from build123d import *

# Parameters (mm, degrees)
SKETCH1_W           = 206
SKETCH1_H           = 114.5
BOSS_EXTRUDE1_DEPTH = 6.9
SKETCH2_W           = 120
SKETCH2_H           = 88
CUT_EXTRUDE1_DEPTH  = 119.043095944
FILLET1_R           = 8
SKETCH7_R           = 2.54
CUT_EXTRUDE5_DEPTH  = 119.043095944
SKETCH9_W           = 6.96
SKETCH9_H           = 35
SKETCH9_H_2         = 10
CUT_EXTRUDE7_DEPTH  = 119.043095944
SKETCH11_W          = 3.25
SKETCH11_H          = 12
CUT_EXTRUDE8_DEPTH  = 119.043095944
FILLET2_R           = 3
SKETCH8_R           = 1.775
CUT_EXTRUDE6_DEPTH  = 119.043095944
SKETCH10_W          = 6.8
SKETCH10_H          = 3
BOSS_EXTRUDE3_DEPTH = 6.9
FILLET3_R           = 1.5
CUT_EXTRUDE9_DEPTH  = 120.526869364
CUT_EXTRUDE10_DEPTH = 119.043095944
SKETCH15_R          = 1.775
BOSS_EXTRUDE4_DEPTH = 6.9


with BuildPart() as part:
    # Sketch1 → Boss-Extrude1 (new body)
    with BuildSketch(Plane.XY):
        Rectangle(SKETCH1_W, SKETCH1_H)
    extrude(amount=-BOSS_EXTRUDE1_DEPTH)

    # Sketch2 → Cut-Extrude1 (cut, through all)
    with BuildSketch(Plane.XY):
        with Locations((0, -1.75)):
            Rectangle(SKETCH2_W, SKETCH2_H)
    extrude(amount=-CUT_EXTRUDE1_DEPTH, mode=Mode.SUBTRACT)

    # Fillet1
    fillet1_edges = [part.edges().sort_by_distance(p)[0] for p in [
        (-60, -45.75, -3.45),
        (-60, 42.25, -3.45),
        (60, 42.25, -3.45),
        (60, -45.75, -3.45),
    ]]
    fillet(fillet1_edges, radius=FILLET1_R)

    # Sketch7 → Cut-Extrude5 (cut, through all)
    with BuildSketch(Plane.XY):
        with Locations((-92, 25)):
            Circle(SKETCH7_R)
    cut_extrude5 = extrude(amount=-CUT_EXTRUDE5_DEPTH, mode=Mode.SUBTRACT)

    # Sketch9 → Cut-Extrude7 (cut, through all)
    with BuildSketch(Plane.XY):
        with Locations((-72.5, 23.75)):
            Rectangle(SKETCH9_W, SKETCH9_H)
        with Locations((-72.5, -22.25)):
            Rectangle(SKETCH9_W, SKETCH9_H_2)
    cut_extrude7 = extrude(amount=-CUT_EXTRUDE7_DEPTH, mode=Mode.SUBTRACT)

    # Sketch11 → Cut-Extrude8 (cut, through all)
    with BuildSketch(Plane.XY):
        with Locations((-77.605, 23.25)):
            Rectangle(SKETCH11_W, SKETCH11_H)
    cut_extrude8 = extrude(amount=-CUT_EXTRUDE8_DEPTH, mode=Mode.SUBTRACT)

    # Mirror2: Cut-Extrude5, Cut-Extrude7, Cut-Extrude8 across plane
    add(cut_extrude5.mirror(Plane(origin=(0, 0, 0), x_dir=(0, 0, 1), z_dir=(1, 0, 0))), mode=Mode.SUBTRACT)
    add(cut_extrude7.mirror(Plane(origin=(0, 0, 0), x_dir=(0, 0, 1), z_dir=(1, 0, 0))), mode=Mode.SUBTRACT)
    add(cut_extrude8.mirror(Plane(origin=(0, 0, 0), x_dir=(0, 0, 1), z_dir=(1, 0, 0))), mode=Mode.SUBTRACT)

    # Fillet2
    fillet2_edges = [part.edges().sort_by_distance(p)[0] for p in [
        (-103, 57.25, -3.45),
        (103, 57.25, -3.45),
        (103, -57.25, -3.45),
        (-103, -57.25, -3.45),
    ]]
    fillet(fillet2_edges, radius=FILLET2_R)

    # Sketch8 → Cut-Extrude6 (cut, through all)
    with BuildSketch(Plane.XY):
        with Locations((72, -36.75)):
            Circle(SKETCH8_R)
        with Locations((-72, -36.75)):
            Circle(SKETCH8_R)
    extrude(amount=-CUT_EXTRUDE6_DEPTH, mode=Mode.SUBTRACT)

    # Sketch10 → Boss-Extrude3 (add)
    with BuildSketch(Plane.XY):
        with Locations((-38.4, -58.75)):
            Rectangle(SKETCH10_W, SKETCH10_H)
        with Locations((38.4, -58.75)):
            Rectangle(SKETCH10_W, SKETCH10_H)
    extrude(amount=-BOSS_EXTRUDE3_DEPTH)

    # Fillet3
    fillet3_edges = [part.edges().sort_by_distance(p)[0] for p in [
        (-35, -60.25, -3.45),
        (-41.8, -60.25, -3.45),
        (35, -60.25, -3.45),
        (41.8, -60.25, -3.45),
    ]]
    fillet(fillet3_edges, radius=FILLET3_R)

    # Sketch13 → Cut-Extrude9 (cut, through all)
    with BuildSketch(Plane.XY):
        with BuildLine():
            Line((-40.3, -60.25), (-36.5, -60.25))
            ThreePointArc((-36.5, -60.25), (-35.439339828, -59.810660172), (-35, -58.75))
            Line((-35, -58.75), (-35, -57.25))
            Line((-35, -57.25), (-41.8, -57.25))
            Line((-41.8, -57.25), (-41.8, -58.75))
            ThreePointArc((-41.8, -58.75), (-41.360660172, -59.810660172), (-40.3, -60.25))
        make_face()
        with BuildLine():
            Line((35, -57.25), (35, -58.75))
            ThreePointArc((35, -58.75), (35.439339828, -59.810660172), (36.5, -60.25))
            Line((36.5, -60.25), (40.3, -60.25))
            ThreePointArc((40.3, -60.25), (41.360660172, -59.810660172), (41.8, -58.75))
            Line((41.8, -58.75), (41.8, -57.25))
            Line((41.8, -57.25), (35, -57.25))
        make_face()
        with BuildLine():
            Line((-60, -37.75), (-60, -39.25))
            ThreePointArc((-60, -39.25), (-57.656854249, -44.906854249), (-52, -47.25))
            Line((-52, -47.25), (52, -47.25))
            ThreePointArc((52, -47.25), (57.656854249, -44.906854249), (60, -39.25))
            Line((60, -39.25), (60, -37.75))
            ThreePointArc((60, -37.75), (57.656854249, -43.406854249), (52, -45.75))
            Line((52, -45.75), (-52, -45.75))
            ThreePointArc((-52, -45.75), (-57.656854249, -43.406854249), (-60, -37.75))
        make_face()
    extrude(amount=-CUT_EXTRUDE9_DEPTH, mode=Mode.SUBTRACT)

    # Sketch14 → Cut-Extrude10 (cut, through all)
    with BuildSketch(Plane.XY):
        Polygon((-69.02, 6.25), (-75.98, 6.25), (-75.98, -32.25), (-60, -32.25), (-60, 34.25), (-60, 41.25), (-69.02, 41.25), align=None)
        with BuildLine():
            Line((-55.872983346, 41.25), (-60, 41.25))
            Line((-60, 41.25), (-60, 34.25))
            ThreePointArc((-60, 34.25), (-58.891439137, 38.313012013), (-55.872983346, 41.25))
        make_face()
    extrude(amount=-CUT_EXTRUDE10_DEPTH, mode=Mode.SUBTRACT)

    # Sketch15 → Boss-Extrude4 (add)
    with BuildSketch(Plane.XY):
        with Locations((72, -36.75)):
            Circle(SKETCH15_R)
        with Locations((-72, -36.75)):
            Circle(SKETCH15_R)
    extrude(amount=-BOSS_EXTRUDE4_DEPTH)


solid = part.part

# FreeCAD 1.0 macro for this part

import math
import FreeCAD as App
import Part
import Sketcher

V = App.Vector


def edges_at(feature, points):
    """Names of the edges that pass closest to the given points."""
    edges = feature.Shape.Edges
    near = lambda p: min(range(len(edges)), key=lambda i: edges[i].distToShape(Part.Vertex(*p))[0])
    return sorted({f"Edge{near(p) + 1}" for p in points})

doc = App.newDocument("Part")
params = doc.addObject("Spreadsheet::Sheet", "Params")
for row, (alias, value) in enumerate([
    ("sketch1_width", "206 mm"),
    ("sketch1_height", "114.5 mm"),
    ("pad1_length", "6.9 mm"),
    ("sketch2_width", "120 mm"),
    ("sketch2_height", "88 mm"),
    ("fillet_radius", "8 mm"),
    ("sketch3_diameter", "5.08 mm"),
    ("sketch4_height", "35 mm"),
    ("sketch4_height2", "10 mm"),
    ("sketch4_width", "6.96 mm"),
    ("sketch5_height", "12 mm"),
    ("sketch5_width", "3.25 mm"),
    ("fillet2_radius", "3 mm"),
    ("sketch6_diameter", "3.55 mm"),
    ("sketch7_height", "3 mm"),
    ("sketch7_width", "6.8 mm"),
    ("pad2_length", "6.9 mm"),
    ("fillet3_radius", "1.5 mm"),
    ("sketch8_radius", "8 mm"),
    ("sketch8_radius2", "1.5 mm"),
    ("sketch8_width", "104 mm"),
    ("sketch8_width2", "3.8 mm"),
    ("sketch8_height", "1.5 mm"),
    ("sketch9_radius", "8 mm"),
    ("sketch9_height", "35 mm"),
    ("sketch9_height2", "38.5 mm"),
    ("sketch9_height3", "66.5 mm"),
    ("sketch9_width", "6.96 mm"),
    ("sketch10_diameter", "3.55 mm"),
    ("pad3_length", "6.9 mm"),
], start=1):
    params.set(f"A{row}", alias)
    params.set(f"B{row}", "=" + value)
    params.setAlias(f"B{row}", alias)

body = doc.addObject("PartDesign::Body", "Body")

sketch1 = body.newObject("Sketcher::SketchObject", "Sketch")
sketch1.AttachmentSupport = (doc.getObject("XY_Plane"), [""])
sketch1.MapMode = "FlatFace"
sketch1.addGeometry([
    Part.LineSegment(V(-103, 57, 0), V(-103, -57, 0)),
    Part.LineSegment(V(-103, -57, 0), V(103, -57, 0)),
    Part.LineSegment(V(103, -57, 0), V(103, 57, 0)),
    Part.LineSegment(V(103, 57, 0), V(-103, 57, 0)),
], False)
sketch1.addConstraint([
    Sketcher.Constraint("Coincident", 0, 2, 1, 1),
    Sketcher.Constraint("Coincident", 1, 2, 2, 1),
    Sketcher.Constraint("Coincident", 2, 2, 3, 1),
    Sketcher.Constraint("Coincident", 3, 2, 0, 1),
    Sketcher.Constraint("Vertical", 0),
    Sketcher.Constraint("Horizontal", 1),
    Sketcher.Constraint("Vertical", 2),
    Sketcher.Constraint("Horizontal", 3),
    Sketcher.Constraint("Symmetric", 0, 2, 2, 2, -1, 1),
    Sketcher.Constraint("DistanceX", 1, 1, 1, 2, 206.0),
    Sketcher.Constraint("DistanceY", 0, 2, 0, 1, 114.5),
])
sketch1.setExpression("Constraints[9]", "Params.sketch1_width")
sketch1.setExpression("Constraints[10]", "Params.sketch1_height")
pad1 = body.newObject("PartDesign::Pad", "Pad")
pad1.Profile = sketch1
pad1.setExpression("Length", "Params.pad1_length")
pad1.Reversed = True

sketch2 = body.newObject("Sketcher::SketchObject", "Sketch001")
sketch2.AttachmentSupport = (doc.getObject("XY_Plane"), [""])
sketch2.MapMode = "FlatFace"
sketch2.addGeometry([
    Part.LineSegment(V(-60, 42, 0), V(-60, -46, 0)),
    Part.LineSegment(V(-60, -46, 0), V(60, -46, 0)),
    Part.LineSegment(V(60, -46, 0), V(60, 42, 0)),
    Part.LineSegment(V(60, 42, 0), V(-60, 42, 0)),
], False)
sketch2.addConstraint([
    Sketcher.Constraint("Coincident", 0, 2, 1, 1),
    Sketcher.Constraint("Coincident", 1, 2, 2, 1),
    Sketcher.Constraint("Coincident", 2, 2, 3, 1),
    Sketcher.Constraint("Coincident", 3, 2, 0, 1),
    Sketcher.Constraint("Vertical", 0),
    Sketcher.Constraint("Horizontal", 1),
    Sketcher.Constraint("Vertical", 2),
    Sketcher.Constraint("Horizontal", 3),
    Sketcher.Constraint("DistanceX", 1, 1, 1, 2, 120.0),
    Sketcher.Constraint("DistanceY", 0, 2, 0, 1, 88.0),
    Sketcher.Constraint("DistanceX", 0, 2, -1, 1, 60.0),
    Sketcher.Constraint("DistanceY", 0, 2, -1, 1, 45.75),
])
sketch2.setExpression("Constraints[8]", "Params.sketch2_width")
sketch2.setExpression("Constraints[9]", "Params.sketch2_height")
pocket1 = body.newObject("PartDesign::Pocket", "Pocket")
pocket1.Profile = sketch2
pocket1.Type = "ThroughAll"
doc.recompute()

fillet = body.newObject("PartDesign::Fillet", "Fillet")
fillet.Base = (pocket1, edges_at(pocket1, [
    (-60, -45.75, -3.45),
    (-60, 42.25, -3.45),
    (60, 42.25, -3.45),
    (60, -45.75, -3.45),
]))
fillet.setExpression("Radius", "Params.fillet_radius")

sketch3 = body.newObject("Sketcher::SketchObject", "Sketch002")
sketch3.AttachmentSupport = (doc.getObject("XY_Plane"), [""])
sketch3.MapMode = "FlatFace"
sketch3.addGeometry(Part.Circle(V(-92, 25, 0), V(0, 0, 1), 2.5), False)
sketch3.addConstraint([
    Sketcher.Constraint("Diameter", 0, 5.08),
    Sketcher.Constraint("DistanceX", 0, 3, -1, 1, 92.0),
    Sketcher.Constraint("DistanceY", -1, 1, 0, 3, 25.0),
])
sketch3.setExpression("Constraints[0]", "Params.sketch3_diameter")
pocket2 = body.newObject("PartDesign::Pocket", "Pocket001")
pocket2.Profile = sketch3
pocket2.Type = "ThroughAll"

sketch4 = body.newObject("Sketcher::SketchObject", "Sketch003")
sketch4.AttachmentSupport = (doc.getObject("XY_Plane"), [""])
sketch4.MapMode = "FlatFace"
sketch4.addGeometry([
    Part.LineSegment(V(-76, 41, 0), V(-76, 6, 0)),
    Part.LineSegment(V(-76, 6, 0), V(-69, 6, 0)),
    Part.LineSegment(V(-69, 6, 0), V(-69, 41, 0)),
    Part.LineSegment(V(-69, 41, 0), V(-76, 41, 0)),
    Part.LineSegment(V(-76, -17, 0), V(-76, -27, 0)),
    Part.LineSegment(V(-76, -27, 0), V(-69, -27, 0)),
    Part.LineSegment(V(-69, -27, 0), V(-69, -17, 0)),
    Part.LineSegment(V(-69, -17, 0), V(-76, -17, 0)),
], False)
sketch4.addConstraint([
    Sketcher.Constraint("Coincident", 0, 2, 1, 1),
    Sketcher.Constraint("Coincident", 1, 2, 2, 1),
    Sketcher.Constraint("Coincident", 2, 2, 3, 1),
    Sketcher.Constraint("Coincident", 3, 2, 0, 1),
    Sketcher.Constraint("Coincident", 4, 2, 5, 1),
    Sketcher.Constraint("Coincident", 5, 2, 6, 1),
    Sketcher.Constraint("Coincident", 6, 2, 7, 1),
    Sketcher.Constraint("Coincident", 7, 2, 4, 1),
    Sketcher.Constraint("Vertical", 0),
    Sketcher.Constraint("Horizontal", 1),
    Sketcher.Constraint("Vertical", 2),
    Sketcher.Constraint("Horizontal", 3),
    Sketcher.Constraint("Vertical", 4),
    Sketcher.Constraint("Horizontal", 5),
    Sketcher.Constraint("Vertical", 6),
    Sketcher.Constraint("Horizontal", 7),
    Sketcher.Constraint("Vertical", 3, 2, 4, 2),
    Sketcher.Constraint("Vertical", 2, 2, 5, 2),
    Sketcher.Constraint("DistanceY", 0, 2, 0, 1, 35.0),
    Sketcher.Constraint("DistanceY", 4, 2, 4, 1, 10.0),
    Sketcher.Constraint("DistanceX", 1, 1, 1, 2, 6.96),
    Sketcher.Constraint("DistanceY", 4, 2, 0, 2, 33.5),
    Sketcher.Constraint("DistanceX", 0, 2, -1, 1, 75.98),
    Sketcher.Constraint("DistanceY", -1, 1, 0, 2, 6.25),
])
sketch4.setExpression("Constraints[18]", "Params.sketch4_height")
sketch4.setExpression("Constraints[19]", "Params.sketch4_height2")
sketch4.setExpression("Constraints[20]", "Params.sketch4_width")
pocket3 = body.newObject("PartDesign::Pocket", "Pocket002")
pocket3.Profile = sketch4
pocket3.Type = "ThroughAll"

sketch5 = body.newObject("Sketcher::SketchObject", "Sketch004")
sketch5.AttachmentSupport = (doc.getObject("XY_Plane"), [""])
sketch5.MapMode = "FlatFace"
sketch5.addGeometry([
    Part.LineSegment(V(-79.2, 29.2, 0), V(-79.2, 17.2, 0)),
    Part.LineSegment(V(-79.2, 17.2, 0), V(-76, 17.2, 0)),
    Part.LineSegment(V(-76, 17.2, 0), V(-76, 29.2, 0)),
    Part.LineSegment(V(-76, 29.2, 0), V(-79.2, 29.2, 0)),
], False)
sketch5.addConstraint([
    Sketcher.Constraint("Coincident", 0, 2, 1, 1),
    Sketcher.Constraint("Coincident", 1, 2, 2, 1),
    Sketcher.Constraint("Coincident", 2, 2, 3, 1),
    Sketcher.Constraint("Coincident", 3, 2, 0, 1),
    Sketcher.Constraint("Vertical", 0),
    Sketcher.Constraint("Horizontal", 1),
    Sketcher.Constraint("Vertical", 2),
    Sketcher.Constraint("Horizontal", 3),
    Sketcher.Constraint("DistanceY", 0, 2, 0, 1, 12.0),
    Sketcher.Constraint("DistanceX", 1, 1, 1, 2, 3.25),
    Sketcher.Constraint("DistanceX", 0, 2, -1, 1, 79.23),
    Sketcher.Constraint("DistanceY", -1, 1, 0, 2, 17.25),
])
sketch5.setExpression("Constraints[8]", "Params.sketch5_height")
sketch5.setExpression("Constraints[9]", "Params.sketch5_width")
pocket4 = body.newObject("PartDesign::Pocket", "Pocket003")
pocket4.Profile = sketch5
pocket4.Type = "ThroughAll"
doc.recompute()

mirrored = body.newObject("PartDesign::Mirrored", "Mirrored")
mirrored.Originals = [pocket2, pocket3, pocket4]
mirrored.MirrorPlane = (doc.getObject("YZ_Plane"), [""])
body.Tip = mirrored
doc.recompute()

fillet2 = body.newObject("PartDesign::Fillet", "Fillet001")
fillet2.Base = (mirrored, edges_at(mirrored, [
    (-103, 57.25, -3.45),
    (103, 57.25, -3.45),
    (103, -57.25, -3.45),
    (-103, -57.25, -3.45),
]))
fillet2.setExpression("Radius", "Params.fillet2_radius")

sketch6 = body.newObject("Sketcher::SketchObject", "Sketch005")
sketch6.AttachmentSupport = (doc.getObject("XY_Plane"), [""])
sketch6.MapMode = "FlatFace"
sketch6.addGeometry([
    Part.Circle(V(72, -36.8, 0), V(0, 0, 1), 1.8),
    Part.Circle(V(-72, -36.8, 0), V(0, 0, 1), 1.8),
], False)
sketch6.addConstraint([
    Sketcher.Constraint("Equal", 0, 1),
    Sketcher.Constraint("Symmetric", 0, 3, 1, 3, -2),
    Sketcher.Constraint("Diameter", 0, 3.55),
    Sketcher.Constraint("DistanceX", -1, 1, 0, 3, 72.0),
    Sketcher.Constraint("DistanceY", 0, 3, -1, 1, 36.75),
])
sketch6.setExpression("Constraints[2]", "Params.sketch6_diameter")
pocket5 = body.newObject("PartDesign::Pocket", "Pocket004")
pocket5.Profile = sketch6
pocket5.Type = "ThroughAll"

sketch7 = body.newObject("Sketcher::SketchObject", "Sketch006")
sketch7.AttachmentSupport = (doc.getObject("XY_Plane"), [""])
sketch7.MapMode = "FlatFace"
sketch7.addGeometry([
    Part.LineSegment(V(-41.8, -57.2, 0), V(-41.8, -60.2, 0)),
    Part.LineSegment(V(-41.8, -60.2, 0), V(-35, -60.2, 0)),
    Part.LineSegment(V(-35, -60.2, 0), V(-35, -57.2, 0)),
    Part.LineSegment(V(-35, -57.2, 0), V(-41.8, -57.2, 0)),
    Part.LineSegment(V(35, -57.2, 0), V(35, -60.2, 0)),
    Part.LineSegment(V(35, -60.2, 0), V(41.8, -60.2, 0)),
    Part.LineSegment(V(41.8, -60.2, 0), V(41.8, -57.2, 0)),
    Part.LineSegment(V(41.8, -57.2, 0), V(35, -57.2, 0)),
], False)
sketch7.addConstraint([
    Sketcher.Constraint("Coincident", 0, 2, 1, 1),
    Sketcher.Constraint("Coincident", 1, 2, 2, 1),
    Sketcher.Constraint("Coincident", 2, 2, 3, 1),
    Sketcher.Constraint("Coincident", 3, 2, 0, 1),
    Sketcher.Constraint("Coincident", 4, 2, 5, 1),
    Sketcher.Constraint("Coincident", 5, 2, 6, 1),
    Sketcher.Constraint("Coincident", 6, 2, 7, 1),
    Sketcher.Constraint("Coincident", 7, 2, 4, 1),
    Sketcher.Constraint("Vertical", 0),
    Sketcher.Constraint("Horizontal", 1),
    Sketcher.Constraint("Vertical", 2),
    Sketcher.Constraint("Horizontal", 3),
    Sketcher.Constraint("Vertical", 4),
    Sketcher.Constraint("Horizontal", 5),
    Sketcher.Constraint("Vertical", 6),
    Sketcher.Constraint("Horizontal", 7),
    Sketcher.Constraint("Symmetric", 1, 2, 4, 2, -2),
    Sketcher.Constraint("Symmetric", 3, 2, 6, 2, -2),
    Sketcher.Constraint("DistanceY", 0, 2, 0, 1, 3.0),
    Sketcher.Constraint("DistanceX", 1, 1, 1, 2, 6.8),
    Sketcher.Constraint("DistanceX", 1, 2, -1, 1, 35.0),
    Sketcher.Constraint("DistanceY", 0, 2, -1, 1, 60.25),
])
sketch7.setExpression("Constraints[18]", "Params.sketch7_height")
sketch7.setExpression("Constraints[19]", "Params.sketch7_width")
pad2 = body.newObject("PartDesign::Pad", "Pad001")
pad2.Profile = sketch7
pad2.setExpression("Length", "Params.pad2_length")
pad2.Reversed = True
doc.recompute()

fillet3 = body.newObject("PartDesign::Fillet", "Fillet002")
fillet3.Base = (pad2, edges_at(pad2, [
    (-35, -60.25, -3.45),
    (-41.8, -60.25, -3.45),
    (35, -60.25, -3.45),
    (41.8, -60.25, -3.45),
]))
fillet3.setExpression("Radius", "Params.fillet3_radius")

sketch8 = body.newObject("Sketcher::SketchObject", "Sketch007")
sketch8.AttachmentSupport = (doc.getObject("XY_Plane"), [""])
sketch8.MapMode = "FlatFace"
sketch8.addGeometry([
    Part.LineSegment(V(-40.3, -60.2, 0), V(-36.5, -60.2, 0)),
    Part.ArcOfCircle(Part.Circle(V(-36.5, -58.8, 0), V(0, 0, 1), 1.5), math.radians(-90), math.radians(0)),
    Part.LineSegment(V(-35, -58.8, 0), V(-35, -57.2, 0)),
    Part.LineSegment(V(-35, -57.2, 0), V(-41.8, -57.2, 0)),
    Part.LineSegment(V(-41.8, -57.2, 0), V(-41.8, -58.8, 0)),
    Part.ArcOfCircle(Part.Circle(V(-40.3, -58.8, 0), V(0, 0, 1), 1.5), math.radians(180), math.radians(270)),
    Part.LineSegment(V(35, -57.2, 0), V(35, -58.8, 0)),
    Part.ArcOfCircle(Part.Circle(V(36.5, -58.8, 0), V(0, 0, 1), 1.5), math.radians(180), math.radians(270)),
    Part.LineSegment(V(36.5, -60.2, 0), V(40.3, -60.2, 0)),
    Part.ArcOfCircle(Part.Circle(V(40.3, -58.8, 0), V(0, 0, 1), 1.5), math.radians(-90), math.radians(0)),
    Part.LineSegment(V(41.8, -58.8, 0), V(41.8, -57.2, 0)),
    Part.LineSegment(V(41.8, -57.2, 0), V(35, -57.2, 0)),
    Part.LineSegment(V(-60, -37.8, 0), V(-60, -39.2, 0)),
    Part.ArcOfCircle(Part.Circle(V(-52, -39.2, 0), V(0, 0, 1), 8), math.radians(-180), math.radians(-90)),
    Part.LineSegment(V(-52, -47.2, 0), V(52, -47.2, 0)),
    Part.ArcOfCircle(Part.Circle(V(52, -39.2, 0), V(0, 0, 1), 8), math.radians(-90), math.radians(0)),
    Part.LineSegment(V(60, -39.2, 0), V(60, -37.8, 0)),
    Part.ArcOfCircle(Part.Circle(V(52, -37.7, 0), V(0, 0, 1), 8), math.radians(-90), math.radians(0)),
    Part.LineSegment(V(52, -45.8, 0), V(-52, -45.8, 0)),
    Part.ArcOfCircle(Part.Circle(V(-52, -37.7, 0), V(0, 0, 1), 8), math.radians(-180), math.radians(-90)),
], False)
sketch8.addConstraint([
    Sketcher.Constraint("Tangent", 0, 2, 1, 1),
    Sketcher.Constraint("Tangent", 1, 2, 2, 1),
    Sketcher.Constraint("Coincident", 2, 2, 3, 1),
    Sketcher.Constraint("Coincident", 3, 2, 4, 1),
    Sketcher.Constraint("Tangent", 4, 2, 5, 1),
    Sketcher.Constraint("Tangent", 5, 2, 0, 1),
    Sketcher.Constraint("Tangent", 6, 2, 7, 1),
    Sketcher.Constraint("Tangent", 7, 2, 8, 1),
    Sketcher.Constraint("Tangent", 8, 2, 9, 1),
    Sketcher.Constraint("Tangent", 9, 2, 10, 1),
    Sketcher.Constraint("Coincident", 10, 2, 11, 1),
    Sketcher.Constraint("Coincident", 11, 2, 6, 1),
    Sketcher.Constraint("Tangent", 12, 2, 13, 1),
    Sketcher.Constraint("Tangent", 13, 2, 14, 1),
    Sketcher.Constraint("Tangent", 14, 2, 15, 1),
    Sketcher.Constraint("Tangent", 15, 2, 16, 1),
    Sketcher.Constraint("Tangent", 16, 2, 17, 2),
    Sketcher.Constraint("Tangent", 17, 1, 18, 1),
    Sketcher.Constraint("Tangent", 18, 2, 19, 2),
    Sketcher.Constraint("Tangent", 19, 1, 12, 1),
    Sketcher.Constraint("Horizontal", 0),
    Sketcher.Constraint("Vertical", 2),
    Sketcher.Constraint("Horizontal", 3),
    Sketcher.Constraint("Vertical", 4),
    Sketcher.Constraint("Vertical", 6),
    Sketcher.Constraint("Horizontal", 8),
    Sketcher.Constraint("Vertical", 10),
    Sketcher.Constraint("Horizontal", 11),
    Sketcher.Constraint("Vertical", 12),
    Sketcher.Constraint("Horizontal", 14),
    Sketcher.Constraint("Vertical", 16),
    Sketcher.Constraint("Horizontal", 18),
    Sketcher.Constraint("Equal", 1, 5),
    Sketcher.Constraint("Equal", 5, 7),
    Sketcher.Constraint("Equal", 7, 9),
    Sketcher.Constraint("Equal", 13, 15),
    Sketcher.Constraint("Equal", 15, 17),
    Sketcher.Constraint("Equal", 17, 19),
    Sketcher.Constraint("Symmetric", 1, 3, 7, 3, -2),
    Sketcher.Constraint("Symmetric", 3, 2, 10, 2, -2),
    Sketcher.Constraint("Equal", 10, 12),
    Sketcher.Constraint("Radius", 13, 8.0),
    Sketcher.Constraint("Radius", 1, 1.5),
    Sketcher.Constraint("DistanceX", 14, 1, 14, 2, 104.0),
    Sketcher.Constraint("DistanceX", 0, 1, 0, 2, 3.8),
    Sketcher.Constraint("DistanceY", 2, 1, 2, 2, 1.5),
    Sketcher.Constraint("DistanceX", 13, 3, -1, 1, 52.0),
    Sketcher.Constraint("DistanceX", 1, 2, -1, 1, 35.0),
    Sketcher.Constraint("DistanceY", 9, 3, 17, 3, 21.0),
    Sketcher.Constraint("DistanceY", 1, 3, -1, 1, 58.75),
])
sketch8.setExpression("Constraints[41]", "Params.sketch8_radius")
sketch8.setExpression("Constraints[42]", "Params.sketch8_radius2")
sketch8.setExpression("Constraints[43]", "Params.sketch8_width")
sketch8.setExpression("Constraints[44]", "Params.sketch8_width2")
sketch8.setExpression("Constraints[45]", "Params.sketch8_height")
pocket6 = body.newObject("PartDesign::Pocket", "Pocket005")
pocket6.Profile = sketch8
pocket6.Type = "ThroughAll"

sketch9 = body.newObject("Sketcher::SketchObject", "Sketch008")
sketch9.AttachmentSupport = (doc.getObject("XY_Plane"), [""])
sketch9.MapMode = "FlatFace"
sketch9.addGeometry([
    Part.LineSegment(V(-69, 6, 0), V(-76, 6, 0)),
    Part.LineSegment(V(-76, 6, 0), V(-76, -32, 0)),
    Part.LineSegment(V(-76, -32, 0), V(-60, -32, 0)),
    Part.LineSegment(V(-60, -32, 0), V(-60, 34, 0)),
    Part.ArcOfCircle(Part.Circle(V(-52, 34, 0), V(0, 0, 1), 8), math.radians(119), math.radians(180)),
    Part.LineSegment(V(-56, 41, 0), V(-69, 41, 0)),
    Part.LineSegment(V(-69, 41, 0), V(-69, 6, 0)),
], False)
sketch9.addConstraint([
    Sketcher.Constraint("Coincident", 0, 2, 1, 1),
    Sketcher.Constraint("Coincident", 1, 2, 2, 1),
    Sketcher.Constraint("Coincident", 2, 2, 3, 1),
    Sketcher.Constraint("Tangent", 3, 2, 4, 2),
    Sketcher.Constraint("Coincident", 4, 1, 5, 1),
    Sketcher.Constraint("Coincident", 5, 2, 6, 1),
    Sketcher.Constraint("Coincident", 6, 2, 0, 1),
    Sketcher.Constraint("Horizontal", 0),
    Sketcher.Constraint("Vertical", 1),
    Sketcher.Constraint("Horizontal", 2),
    Sketcher.Constraint("Vertical", 3),
    Sketcher.Constraint("Horizontal", 5),
    Sketcher.Constraint("Vertical", 6),
    Sketcher.Constraint("Radius", 4, 8.0),
    Sketcher.Constraint("DistanceY", 6, 2, 6, 1, 35.0),
    Sketcher.Constraint("DistanceY", 1, 2, 1, 1, 38.5),
    Sketcher.Constraint("DistanceY", 3, 1, 3, 2, 66.5),
    Sketcher.Constraint("DistanceX", 4, 3, -1, 1, 52.0),
    Sketcher.Constraint("DistanceX", 0, 2, 0, 1, 6.96),
    Sketcher.Constraint("DistanceX", 2, 1, 2, 2, 15.98),
    Sketcher.Constraint("DistanceY", -1, 1, 4, 3, 34.25),
])
sketch9.setExpression("Constraints[13]", "Params.sketch9_radius")
sketch9.setExpression("Constraints[14]", "Params.sketch9_height")
sketch9.setExpression("Constraints[15]", "Params.sketch9_height2")
sketch9.setExpression("Constraints[16]", "Params.sketch9_height3")
sketch9.setExpression("Constraints[18]", "Params.sketch9_width")
pocket7 = body.newObject("PartDesign::Pocket", "Pocket006")
pocket7.Profile = sketch9
pocket7.Type = "ThroughAll"

sketch10 = body.newObject("Sketcher::SketchObject", "Sketch009")
sketch10.AttachmentSupport = (doc.getObject("XY_Plane"), [""])
sketch10.MapMode = "FlatFace"
sketch10.addGeometry([
    Part.Circle(V(72, -36.8, 0), V(0, 0, 1), 1.8),
    Part.Circle(V(-72, -36.8, 0), V(0, 0, 1), 1.8),
], False)
sketch10.addConstraint([
    Sketcher.Constraint("Equal", 0, 1),
    Sketcher.Constraint("Symmetric", 0, 3, 1, 3, -2),
    Sketcher.Constraint("Diameter", 0, 3.55),
    Sketcher.Constraint("DistanceX", -1, 1, 0, 3, 72.0),
    Sketcher.Constraint("DistanceY", 0, 3, -1, 1, 36.75),
])
sketch10.setExpression("Constraints[2]", "Params.sketch10_diameter")
pad3 = body.newObject("PartDesign::Pad", "Pad002")
pad3.Profile = sketch10
pad3.setExpression("Length", "Params.pad3_length")
pad3.Reversed = True

doc.recompute()
